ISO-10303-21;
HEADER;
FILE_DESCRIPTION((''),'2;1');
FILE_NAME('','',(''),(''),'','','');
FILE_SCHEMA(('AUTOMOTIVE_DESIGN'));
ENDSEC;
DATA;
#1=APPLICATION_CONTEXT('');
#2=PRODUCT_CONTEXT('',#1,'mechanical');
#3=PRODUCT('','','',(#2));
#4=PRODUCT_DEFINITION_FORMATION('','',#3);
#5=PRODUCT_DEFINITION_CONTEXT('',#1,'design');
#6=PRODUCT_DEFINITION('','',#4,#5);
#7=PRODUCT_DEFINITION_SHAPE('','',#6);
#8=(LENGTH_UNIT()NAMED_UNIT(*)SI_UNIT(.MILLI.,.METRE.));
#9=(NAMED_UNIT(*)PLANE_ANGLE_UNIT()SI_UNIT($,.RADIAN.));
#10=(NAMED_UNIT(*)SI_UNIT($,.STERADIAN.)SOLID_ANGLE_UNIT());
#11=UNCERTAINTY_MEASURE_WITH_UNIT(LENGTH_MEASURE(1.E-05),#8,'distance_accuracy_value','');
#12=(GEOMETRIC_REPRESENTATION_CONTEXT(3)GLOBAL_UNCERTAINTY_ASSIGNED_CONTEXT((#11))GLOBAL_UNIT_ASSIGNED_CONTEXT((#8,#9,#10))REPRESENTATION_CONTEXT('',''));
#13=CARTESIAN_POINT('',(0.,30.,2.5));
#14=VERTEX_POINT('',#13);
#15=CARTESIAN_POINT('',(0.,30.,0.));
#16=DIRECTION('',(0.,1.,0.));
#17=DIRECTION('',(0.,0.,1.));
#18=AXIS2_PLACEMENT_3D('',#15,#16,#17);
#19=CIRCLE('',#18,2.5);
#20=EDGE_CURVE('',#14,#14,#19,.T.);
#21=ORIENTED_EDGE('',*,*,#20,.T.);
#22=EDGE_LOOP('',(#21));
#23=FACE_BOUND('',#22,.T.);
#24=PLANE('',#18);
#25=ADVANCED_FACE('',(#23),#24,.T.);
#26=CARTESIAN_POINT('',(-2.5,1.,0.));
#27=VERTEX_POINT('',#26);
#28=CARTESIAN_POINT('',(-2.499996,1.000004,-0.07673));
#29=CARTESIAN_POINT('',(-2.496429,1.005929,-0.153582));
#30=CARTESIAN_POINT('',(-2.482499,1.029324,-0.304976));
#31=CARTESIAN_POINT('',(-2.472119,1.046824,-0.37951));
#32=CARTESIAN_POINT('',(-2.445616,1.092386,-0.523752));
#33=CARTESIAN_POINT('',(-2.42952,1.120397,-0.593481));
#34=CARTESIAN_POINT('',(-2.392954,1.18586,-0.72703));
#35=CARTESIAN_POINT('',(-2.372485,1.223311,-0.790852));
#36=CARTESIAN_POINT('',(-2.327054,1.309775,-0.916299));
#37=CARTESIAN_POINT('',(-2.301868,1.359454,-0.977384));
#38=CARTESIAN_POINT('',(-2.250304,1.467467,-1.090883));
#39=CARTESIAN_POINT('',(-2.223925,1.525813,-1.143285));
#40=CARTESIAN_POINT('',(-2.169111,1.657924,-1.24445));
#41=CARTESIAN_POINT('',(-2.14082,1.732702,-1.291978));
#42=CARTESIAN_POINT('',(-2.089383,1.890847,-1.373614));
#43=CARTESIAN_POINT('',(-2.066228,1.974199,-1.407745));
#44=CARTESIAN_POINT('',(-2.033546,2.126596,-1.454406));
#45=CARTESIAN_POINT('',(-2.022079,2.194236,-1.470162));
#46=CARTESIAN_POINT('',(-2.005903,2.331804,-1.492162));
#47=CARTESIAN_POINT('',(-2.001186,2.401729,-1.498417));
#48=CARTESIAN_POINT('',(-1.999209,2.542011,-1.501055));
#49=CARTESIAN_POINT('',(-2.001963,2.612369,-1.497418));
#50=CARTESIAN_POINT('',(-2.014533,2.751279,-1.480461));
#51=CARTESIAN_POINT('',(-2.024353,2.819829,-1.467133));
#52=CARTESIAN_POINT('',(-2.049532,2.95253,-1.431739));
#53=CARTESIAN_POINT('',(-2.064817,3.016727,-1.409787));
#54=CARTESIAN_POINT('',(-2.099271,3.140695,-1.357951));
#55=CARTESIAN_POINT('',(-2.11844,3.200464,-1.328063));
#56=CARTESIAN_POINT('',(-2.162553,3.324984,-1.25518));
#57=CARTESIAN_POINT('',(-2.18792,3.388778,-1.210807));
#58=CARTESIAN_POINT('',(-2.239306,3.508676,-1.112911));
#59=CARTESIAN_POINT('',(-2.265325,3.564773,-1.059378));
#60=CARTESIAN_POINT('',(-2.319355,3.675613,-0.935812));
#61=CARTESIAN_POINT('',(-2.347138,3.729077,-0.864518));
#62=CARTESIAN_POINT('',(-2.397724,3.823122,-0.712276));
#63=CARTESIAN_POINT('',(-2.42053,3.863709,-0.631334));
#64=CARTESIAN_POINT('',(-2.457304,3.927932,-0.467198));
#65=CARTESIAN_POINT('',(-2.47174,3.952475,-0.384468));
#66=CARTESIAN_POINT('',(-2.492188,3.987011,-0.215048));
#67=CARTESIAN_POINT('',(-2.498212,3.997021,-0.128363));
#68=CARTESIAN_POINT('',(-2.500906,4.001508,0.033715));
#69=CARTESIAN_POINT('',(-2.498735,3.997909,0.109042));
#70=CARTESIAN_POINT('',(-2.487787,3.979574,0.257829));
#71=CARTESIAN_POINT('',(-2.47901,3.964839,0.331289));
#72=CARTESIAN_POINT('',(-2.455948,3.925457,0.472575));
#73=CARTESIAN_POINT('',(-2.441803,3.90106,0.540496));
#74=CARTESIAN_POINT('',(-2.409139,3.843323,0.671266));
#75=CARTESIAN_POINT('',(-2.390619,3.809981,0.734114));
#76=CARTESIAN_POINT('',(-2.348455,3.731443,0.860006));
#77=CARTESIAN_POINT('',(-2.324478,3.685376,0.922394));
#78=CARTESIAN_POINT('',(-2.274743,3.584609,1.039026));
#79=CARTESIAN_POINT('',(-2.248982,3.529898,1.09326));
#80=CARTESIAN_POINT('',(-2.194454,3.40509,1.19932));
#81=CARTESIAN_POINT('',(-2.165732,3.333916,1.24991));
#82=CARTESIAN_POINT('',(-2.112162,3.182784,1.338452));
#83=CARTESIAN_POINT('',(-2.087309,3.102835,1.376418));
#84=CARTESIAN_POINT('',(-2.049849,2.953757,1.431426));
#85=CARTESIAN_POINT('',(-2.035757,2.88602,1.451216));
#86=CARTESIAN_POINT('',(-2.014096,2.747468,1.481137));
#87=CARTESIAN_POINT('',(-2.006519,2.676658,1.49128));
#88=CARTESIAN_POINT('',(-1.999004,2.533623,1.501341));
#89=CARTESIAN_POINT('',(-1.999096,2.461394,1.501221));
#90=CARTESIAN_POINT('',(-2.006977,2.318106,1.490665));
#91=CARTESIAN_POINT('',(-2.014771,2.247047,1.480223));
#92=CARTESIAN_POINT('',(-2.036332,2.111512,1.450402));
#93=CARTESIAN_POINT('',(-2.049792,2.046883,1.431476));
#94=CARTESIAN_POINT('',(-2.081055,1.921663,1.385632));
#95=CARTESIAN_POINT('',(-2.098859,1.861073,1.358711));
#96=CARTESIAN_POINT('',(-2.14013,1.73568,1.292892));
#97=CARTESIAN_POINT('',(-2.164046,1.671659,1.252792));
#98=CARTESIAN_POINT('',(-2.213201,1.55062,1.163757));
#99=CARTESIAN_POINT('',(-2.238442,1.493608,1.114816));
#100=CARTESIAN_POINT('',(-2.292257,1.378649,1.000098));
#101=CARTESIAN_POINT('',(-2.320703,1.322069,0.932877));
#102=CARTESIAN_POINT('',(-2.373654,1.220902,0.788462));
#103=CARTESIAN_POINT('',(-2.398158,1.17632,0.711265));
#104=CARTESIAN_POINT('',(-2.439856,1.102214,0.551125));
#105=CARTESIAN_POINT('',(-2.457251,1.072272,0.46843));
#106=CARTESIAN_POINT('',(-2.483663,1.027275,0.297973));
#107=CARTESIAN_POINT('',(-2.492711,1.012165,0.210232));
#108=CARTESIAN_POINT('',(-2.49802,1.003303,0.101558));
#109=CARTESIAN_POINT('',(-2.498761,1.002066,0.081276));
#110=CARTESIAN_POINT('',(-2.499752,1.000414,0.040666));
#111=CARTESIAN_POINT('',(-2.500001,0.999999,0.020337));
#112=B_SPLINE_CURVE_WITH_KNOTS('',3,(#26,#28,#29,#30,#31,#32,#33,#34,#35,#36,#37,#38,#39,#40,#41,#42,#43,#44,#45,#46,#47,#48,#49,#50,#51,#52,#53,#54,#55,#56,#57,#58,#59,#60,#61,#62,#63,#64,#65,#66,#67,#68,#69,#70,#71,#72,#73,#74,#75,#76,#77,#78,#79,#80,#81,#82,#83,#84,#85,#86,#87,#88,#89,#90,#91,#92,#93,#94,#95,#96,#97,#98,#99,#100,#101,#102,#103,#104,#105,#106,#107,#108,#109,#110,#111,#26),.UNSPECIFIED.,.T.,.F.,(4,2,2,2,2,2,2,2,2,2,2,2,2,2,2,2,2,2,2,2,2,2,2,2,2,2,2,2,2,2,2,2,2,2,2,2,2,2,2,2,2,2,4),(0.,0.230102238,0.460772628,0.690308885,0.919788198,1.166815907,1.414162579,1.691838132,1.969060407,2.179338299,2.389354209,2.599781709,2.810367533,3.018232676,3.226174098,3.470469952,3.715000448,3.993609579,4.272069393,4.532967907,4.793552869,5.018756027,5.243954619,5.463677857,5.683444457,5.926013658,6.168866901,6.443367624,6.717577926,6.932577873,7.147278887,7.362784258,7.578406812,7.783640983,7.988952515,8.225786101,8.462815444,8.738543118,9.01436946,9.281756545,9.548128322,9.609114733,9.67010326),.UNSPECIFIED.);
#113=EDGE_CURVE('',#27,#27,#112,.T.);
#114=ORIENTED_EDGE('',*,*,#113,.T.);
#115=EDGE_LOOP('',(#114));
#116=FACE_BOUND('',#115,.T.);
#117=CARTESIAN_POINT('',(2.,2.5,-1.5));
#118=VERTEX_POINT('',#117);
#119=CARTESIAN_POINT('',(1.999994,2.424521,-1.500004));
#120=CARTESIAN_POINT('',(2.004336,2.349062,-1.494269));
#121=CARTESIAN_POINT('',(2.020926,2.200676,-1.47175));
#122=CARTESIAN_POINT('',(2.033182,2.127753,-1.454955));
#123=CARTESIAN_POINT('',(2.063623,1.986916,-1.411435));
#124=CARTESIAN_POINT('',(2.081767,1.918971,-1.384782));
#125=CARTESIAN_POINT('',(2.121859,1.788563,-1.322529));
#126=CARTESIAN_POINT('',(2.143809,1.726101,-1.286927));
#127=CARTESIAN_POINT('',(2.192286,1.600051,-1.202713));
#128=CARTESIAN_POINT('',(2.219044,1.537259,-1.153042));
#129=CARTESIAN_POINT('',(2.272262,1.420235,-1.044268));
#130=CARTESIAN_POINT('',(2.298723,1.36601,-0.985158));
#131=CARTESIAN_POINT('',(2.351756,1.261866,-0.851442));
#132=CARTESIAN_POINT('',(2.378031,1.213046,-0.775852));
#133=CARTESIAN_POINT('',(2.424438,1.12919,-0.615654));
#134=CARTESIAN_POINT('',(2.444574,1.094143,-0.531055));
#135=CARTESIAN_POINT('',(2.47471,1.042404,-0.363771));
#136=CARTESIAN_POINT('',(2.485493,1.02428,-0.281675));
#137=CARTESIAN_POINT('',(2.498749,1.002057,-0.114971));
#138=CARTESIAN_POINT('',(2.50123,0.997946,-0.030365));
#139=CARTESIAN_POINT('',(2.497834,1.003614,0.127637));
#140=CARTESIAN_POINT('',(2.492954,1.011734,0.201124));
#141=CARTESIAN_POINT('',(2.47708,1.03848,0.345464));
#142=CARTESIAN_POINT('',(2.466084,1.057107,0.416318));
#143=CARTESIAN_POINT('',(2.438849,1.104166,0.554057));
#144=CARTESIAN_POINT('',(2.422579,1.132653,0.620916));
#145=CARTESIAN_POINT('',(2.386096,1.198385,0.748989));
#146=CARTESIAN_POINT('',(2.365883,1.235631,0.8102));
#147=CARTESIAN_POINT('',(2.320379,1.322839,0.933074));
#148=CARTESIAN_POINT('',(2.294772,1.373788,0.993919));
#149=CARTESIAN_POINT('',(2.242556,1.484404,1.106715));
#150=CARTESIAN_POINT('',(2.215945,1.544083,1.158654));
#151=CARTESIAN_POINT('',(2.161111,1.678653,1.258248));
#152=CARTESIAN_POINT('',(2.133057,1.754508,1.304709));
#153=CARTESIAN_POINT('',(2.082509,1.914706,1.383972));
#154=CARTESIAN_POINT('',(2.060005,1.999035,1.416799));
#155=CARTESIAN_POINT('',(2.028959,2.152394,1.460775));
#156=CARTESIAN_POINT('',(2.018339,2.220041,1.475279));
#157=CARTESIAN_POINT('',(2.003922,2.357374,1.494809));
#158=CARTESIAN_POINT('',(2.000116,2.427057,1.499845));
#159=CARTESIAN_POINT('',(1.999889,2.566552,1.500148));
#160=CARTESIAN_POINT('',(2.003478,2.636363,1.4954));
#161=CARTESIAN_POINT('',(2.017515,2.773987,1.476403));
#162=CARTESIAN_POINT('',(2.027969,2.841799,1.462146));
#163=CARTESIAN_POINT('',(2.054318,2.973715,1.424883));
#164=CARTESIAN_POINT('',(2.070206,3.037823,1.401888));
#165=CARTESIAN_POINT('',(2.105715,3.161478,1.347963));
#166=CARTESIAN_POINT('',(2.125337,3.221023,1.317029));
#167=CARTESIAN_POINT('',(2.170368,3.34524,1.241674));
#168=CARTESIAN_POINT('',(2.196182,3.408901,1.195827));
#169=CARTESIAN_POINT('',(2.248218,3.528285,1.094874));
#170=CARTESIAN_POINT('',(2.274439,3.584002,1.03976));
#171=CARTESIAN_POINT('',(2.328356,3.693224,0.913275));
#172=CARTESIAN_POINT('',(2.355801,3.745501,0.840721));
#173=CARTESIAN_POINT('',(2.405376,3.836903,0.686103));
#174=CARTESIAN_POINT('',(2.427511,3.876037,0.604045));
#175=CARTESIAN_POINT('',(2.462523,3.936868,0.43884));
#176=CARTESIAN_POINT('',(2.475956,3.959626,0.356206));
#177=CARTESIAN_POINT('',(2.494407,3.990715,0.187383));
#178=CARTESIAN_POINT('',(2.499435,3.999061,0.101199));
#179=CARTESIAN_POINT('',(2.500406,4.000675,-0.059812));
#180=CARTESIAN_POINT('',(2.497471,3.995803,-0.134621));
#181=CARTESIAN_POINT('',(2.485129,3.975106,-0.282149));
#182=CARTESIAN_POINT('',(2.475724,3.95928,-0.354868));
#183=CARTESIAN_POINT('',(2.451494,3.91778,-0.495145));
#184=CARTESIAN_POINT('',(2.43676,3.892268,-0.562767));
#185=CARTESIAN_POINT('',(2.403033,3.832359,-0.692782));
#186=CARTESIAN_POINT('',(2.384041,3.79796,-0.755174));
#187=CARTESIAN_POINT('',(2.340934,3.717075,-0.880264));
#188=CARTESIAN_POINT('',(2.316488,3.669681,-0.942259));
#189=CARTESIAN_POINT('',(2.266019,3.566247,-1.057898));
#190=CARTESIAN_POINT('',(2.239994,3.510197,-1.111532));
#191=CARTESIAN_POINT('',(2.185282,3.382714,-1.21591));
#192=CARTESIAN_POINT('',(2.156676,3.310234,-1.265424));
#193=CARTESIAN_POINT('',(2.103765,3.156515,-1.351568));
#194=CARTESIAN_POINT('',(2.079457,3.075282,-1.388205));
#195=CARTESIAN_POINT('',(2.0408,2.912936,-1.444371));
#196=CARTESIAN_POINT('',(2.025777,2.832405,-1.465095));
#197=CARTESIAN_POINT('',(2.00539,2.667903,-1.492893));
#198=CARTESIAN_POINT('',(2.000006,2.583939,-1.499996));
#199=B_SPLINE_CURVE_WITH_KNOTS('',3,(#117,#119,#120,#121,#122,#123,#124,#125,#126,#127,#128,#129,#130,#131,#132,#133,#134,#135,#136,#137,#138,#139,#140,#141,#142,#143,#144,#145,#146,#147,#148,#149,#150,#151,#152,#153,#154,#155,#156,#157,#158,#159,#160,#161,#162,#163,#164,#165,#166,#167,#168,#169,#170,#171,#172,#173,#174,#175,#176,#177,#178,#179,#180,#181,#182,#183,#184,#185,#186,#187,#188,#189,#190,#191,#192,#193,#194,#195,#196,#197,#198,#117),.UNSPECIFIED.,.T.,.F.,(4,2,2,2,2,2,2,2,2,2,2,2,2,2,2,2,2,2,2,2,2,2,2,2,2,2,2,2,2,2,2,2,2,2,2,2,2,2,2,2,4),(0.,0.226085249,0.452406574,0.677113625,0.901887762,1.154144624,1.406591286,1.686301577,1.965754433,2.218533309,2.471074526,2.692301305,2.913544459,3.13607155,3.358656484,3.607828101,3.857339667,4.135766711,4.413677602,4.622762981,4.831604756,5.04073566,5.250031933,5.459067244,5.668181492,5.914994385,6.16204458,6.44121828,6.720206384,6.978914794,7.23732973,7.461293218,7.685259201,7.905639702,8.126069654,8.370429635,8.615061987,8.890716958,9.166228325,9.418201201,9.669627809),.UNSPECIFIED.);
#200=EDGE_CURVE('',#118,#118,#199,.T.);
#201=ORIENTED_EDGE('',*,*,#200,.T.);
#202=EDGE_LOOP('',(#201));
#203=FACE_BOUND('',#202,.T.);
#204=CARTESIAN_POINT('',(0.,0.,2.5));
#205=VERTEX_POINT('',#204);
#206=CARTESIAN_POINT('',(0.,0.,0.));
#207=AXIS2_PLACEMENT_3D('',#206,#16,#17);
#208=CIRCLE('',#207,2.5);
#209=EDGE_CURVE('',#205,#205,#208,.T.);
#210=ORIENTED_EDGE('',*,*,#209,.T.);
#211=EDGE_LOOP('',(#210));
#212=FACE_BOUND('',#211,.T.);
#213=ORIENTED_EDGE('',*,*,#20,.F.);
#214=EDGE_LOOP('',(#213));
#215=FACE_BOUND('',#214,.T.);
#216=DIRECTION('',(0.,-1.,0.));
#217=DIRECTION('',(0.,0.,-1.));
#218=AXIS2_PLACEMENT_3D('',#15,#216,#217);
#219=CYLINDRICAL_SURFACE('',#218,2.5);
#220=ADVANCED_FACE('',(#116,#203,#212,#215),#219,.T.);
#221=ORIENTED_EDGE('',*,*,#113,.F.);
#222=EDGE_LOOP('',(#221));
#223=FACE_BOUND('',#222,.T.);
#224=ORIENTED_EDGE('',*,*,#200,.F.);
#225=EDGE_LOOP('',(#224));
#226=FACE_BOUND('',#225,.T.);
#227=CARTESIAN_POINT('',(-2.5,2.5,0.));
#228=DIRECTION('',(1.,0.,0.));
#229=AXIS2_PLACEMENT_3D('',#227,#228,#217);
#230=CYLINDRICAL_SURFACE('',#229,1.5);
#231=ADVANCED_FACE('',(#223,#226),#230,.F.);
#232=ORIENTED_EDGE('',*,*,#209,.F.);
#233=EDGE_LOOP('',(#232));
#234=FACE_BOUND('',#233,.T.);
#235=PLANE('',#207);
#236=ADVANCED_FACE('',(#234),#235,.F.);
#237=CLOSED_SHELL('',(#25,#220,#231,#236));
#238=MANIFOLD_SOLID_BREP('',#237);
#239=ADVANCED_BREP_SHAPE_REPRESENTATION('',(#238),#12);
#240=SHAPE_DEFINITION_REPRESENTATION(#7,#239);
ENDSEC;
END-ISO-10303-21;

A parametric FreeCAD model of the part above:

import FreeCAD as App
import Part
import Sketcher
from FreeCAD import Vector
Q = App.Units.Quantity

doc = App.newDocument("Part")
body = doc.addObject("PartDesign::Body", "Body")

# Sketch on XZ plane
sketch1 = body.newObject("Sketcher::SketchObject", "Sketch")
sketch1.AttachmentSupport = (doc.getObject("XZ_Plane"), [""])
sketch1.MapMode = "FlatFace"
sketch1.addGeometry(Part.Circle(Vector(0, 0, 0), Vector(0, 0, 1), 2.5), False)
sketch1.addConstraint([
    Sketcher.Constraint("Coincident", 0, 3, -1, 1),
    Sketcher.Constraint("Diameter", 0, Q("5 mm")),
])
pad1 = body.newObject("PartDesign::Pad", "Pad")
pad1.Profile = sketch1
pad1.Length = 30
pad1.Reversed = True

# Sketch on YZ plane
sketch2 = body.newObject("Sketcher::SketchObject", "Sketch001")
sketch2.AttachmentSupport = (doc.getObject("YZ_Plane"), [""])
sketch2.MapMode = "FlatFace"
sketch2.addGeometry(Part.Circle(Vector(2.5, 0, 0), Vector(0, 0, 1), 1.5), False)
sketch2.addConstraint([
    Sketcher.Constraint("PointOnObject", 0, 3, -1),
    Sketcher.Constraint("Diameter", 0, Q("3 mm")),
    Sketcher.Constraint("DistanceX", -1, 1, 0, 3, Q("2.5 mm")),
])
pocket1 = body.newObject("PartDesign::Pocket", "Pocket")
pocket1.Profile = sketch2
pocket1.Type = "ThroughAll"
pocket1.Midplane = True

doc.recompute()
